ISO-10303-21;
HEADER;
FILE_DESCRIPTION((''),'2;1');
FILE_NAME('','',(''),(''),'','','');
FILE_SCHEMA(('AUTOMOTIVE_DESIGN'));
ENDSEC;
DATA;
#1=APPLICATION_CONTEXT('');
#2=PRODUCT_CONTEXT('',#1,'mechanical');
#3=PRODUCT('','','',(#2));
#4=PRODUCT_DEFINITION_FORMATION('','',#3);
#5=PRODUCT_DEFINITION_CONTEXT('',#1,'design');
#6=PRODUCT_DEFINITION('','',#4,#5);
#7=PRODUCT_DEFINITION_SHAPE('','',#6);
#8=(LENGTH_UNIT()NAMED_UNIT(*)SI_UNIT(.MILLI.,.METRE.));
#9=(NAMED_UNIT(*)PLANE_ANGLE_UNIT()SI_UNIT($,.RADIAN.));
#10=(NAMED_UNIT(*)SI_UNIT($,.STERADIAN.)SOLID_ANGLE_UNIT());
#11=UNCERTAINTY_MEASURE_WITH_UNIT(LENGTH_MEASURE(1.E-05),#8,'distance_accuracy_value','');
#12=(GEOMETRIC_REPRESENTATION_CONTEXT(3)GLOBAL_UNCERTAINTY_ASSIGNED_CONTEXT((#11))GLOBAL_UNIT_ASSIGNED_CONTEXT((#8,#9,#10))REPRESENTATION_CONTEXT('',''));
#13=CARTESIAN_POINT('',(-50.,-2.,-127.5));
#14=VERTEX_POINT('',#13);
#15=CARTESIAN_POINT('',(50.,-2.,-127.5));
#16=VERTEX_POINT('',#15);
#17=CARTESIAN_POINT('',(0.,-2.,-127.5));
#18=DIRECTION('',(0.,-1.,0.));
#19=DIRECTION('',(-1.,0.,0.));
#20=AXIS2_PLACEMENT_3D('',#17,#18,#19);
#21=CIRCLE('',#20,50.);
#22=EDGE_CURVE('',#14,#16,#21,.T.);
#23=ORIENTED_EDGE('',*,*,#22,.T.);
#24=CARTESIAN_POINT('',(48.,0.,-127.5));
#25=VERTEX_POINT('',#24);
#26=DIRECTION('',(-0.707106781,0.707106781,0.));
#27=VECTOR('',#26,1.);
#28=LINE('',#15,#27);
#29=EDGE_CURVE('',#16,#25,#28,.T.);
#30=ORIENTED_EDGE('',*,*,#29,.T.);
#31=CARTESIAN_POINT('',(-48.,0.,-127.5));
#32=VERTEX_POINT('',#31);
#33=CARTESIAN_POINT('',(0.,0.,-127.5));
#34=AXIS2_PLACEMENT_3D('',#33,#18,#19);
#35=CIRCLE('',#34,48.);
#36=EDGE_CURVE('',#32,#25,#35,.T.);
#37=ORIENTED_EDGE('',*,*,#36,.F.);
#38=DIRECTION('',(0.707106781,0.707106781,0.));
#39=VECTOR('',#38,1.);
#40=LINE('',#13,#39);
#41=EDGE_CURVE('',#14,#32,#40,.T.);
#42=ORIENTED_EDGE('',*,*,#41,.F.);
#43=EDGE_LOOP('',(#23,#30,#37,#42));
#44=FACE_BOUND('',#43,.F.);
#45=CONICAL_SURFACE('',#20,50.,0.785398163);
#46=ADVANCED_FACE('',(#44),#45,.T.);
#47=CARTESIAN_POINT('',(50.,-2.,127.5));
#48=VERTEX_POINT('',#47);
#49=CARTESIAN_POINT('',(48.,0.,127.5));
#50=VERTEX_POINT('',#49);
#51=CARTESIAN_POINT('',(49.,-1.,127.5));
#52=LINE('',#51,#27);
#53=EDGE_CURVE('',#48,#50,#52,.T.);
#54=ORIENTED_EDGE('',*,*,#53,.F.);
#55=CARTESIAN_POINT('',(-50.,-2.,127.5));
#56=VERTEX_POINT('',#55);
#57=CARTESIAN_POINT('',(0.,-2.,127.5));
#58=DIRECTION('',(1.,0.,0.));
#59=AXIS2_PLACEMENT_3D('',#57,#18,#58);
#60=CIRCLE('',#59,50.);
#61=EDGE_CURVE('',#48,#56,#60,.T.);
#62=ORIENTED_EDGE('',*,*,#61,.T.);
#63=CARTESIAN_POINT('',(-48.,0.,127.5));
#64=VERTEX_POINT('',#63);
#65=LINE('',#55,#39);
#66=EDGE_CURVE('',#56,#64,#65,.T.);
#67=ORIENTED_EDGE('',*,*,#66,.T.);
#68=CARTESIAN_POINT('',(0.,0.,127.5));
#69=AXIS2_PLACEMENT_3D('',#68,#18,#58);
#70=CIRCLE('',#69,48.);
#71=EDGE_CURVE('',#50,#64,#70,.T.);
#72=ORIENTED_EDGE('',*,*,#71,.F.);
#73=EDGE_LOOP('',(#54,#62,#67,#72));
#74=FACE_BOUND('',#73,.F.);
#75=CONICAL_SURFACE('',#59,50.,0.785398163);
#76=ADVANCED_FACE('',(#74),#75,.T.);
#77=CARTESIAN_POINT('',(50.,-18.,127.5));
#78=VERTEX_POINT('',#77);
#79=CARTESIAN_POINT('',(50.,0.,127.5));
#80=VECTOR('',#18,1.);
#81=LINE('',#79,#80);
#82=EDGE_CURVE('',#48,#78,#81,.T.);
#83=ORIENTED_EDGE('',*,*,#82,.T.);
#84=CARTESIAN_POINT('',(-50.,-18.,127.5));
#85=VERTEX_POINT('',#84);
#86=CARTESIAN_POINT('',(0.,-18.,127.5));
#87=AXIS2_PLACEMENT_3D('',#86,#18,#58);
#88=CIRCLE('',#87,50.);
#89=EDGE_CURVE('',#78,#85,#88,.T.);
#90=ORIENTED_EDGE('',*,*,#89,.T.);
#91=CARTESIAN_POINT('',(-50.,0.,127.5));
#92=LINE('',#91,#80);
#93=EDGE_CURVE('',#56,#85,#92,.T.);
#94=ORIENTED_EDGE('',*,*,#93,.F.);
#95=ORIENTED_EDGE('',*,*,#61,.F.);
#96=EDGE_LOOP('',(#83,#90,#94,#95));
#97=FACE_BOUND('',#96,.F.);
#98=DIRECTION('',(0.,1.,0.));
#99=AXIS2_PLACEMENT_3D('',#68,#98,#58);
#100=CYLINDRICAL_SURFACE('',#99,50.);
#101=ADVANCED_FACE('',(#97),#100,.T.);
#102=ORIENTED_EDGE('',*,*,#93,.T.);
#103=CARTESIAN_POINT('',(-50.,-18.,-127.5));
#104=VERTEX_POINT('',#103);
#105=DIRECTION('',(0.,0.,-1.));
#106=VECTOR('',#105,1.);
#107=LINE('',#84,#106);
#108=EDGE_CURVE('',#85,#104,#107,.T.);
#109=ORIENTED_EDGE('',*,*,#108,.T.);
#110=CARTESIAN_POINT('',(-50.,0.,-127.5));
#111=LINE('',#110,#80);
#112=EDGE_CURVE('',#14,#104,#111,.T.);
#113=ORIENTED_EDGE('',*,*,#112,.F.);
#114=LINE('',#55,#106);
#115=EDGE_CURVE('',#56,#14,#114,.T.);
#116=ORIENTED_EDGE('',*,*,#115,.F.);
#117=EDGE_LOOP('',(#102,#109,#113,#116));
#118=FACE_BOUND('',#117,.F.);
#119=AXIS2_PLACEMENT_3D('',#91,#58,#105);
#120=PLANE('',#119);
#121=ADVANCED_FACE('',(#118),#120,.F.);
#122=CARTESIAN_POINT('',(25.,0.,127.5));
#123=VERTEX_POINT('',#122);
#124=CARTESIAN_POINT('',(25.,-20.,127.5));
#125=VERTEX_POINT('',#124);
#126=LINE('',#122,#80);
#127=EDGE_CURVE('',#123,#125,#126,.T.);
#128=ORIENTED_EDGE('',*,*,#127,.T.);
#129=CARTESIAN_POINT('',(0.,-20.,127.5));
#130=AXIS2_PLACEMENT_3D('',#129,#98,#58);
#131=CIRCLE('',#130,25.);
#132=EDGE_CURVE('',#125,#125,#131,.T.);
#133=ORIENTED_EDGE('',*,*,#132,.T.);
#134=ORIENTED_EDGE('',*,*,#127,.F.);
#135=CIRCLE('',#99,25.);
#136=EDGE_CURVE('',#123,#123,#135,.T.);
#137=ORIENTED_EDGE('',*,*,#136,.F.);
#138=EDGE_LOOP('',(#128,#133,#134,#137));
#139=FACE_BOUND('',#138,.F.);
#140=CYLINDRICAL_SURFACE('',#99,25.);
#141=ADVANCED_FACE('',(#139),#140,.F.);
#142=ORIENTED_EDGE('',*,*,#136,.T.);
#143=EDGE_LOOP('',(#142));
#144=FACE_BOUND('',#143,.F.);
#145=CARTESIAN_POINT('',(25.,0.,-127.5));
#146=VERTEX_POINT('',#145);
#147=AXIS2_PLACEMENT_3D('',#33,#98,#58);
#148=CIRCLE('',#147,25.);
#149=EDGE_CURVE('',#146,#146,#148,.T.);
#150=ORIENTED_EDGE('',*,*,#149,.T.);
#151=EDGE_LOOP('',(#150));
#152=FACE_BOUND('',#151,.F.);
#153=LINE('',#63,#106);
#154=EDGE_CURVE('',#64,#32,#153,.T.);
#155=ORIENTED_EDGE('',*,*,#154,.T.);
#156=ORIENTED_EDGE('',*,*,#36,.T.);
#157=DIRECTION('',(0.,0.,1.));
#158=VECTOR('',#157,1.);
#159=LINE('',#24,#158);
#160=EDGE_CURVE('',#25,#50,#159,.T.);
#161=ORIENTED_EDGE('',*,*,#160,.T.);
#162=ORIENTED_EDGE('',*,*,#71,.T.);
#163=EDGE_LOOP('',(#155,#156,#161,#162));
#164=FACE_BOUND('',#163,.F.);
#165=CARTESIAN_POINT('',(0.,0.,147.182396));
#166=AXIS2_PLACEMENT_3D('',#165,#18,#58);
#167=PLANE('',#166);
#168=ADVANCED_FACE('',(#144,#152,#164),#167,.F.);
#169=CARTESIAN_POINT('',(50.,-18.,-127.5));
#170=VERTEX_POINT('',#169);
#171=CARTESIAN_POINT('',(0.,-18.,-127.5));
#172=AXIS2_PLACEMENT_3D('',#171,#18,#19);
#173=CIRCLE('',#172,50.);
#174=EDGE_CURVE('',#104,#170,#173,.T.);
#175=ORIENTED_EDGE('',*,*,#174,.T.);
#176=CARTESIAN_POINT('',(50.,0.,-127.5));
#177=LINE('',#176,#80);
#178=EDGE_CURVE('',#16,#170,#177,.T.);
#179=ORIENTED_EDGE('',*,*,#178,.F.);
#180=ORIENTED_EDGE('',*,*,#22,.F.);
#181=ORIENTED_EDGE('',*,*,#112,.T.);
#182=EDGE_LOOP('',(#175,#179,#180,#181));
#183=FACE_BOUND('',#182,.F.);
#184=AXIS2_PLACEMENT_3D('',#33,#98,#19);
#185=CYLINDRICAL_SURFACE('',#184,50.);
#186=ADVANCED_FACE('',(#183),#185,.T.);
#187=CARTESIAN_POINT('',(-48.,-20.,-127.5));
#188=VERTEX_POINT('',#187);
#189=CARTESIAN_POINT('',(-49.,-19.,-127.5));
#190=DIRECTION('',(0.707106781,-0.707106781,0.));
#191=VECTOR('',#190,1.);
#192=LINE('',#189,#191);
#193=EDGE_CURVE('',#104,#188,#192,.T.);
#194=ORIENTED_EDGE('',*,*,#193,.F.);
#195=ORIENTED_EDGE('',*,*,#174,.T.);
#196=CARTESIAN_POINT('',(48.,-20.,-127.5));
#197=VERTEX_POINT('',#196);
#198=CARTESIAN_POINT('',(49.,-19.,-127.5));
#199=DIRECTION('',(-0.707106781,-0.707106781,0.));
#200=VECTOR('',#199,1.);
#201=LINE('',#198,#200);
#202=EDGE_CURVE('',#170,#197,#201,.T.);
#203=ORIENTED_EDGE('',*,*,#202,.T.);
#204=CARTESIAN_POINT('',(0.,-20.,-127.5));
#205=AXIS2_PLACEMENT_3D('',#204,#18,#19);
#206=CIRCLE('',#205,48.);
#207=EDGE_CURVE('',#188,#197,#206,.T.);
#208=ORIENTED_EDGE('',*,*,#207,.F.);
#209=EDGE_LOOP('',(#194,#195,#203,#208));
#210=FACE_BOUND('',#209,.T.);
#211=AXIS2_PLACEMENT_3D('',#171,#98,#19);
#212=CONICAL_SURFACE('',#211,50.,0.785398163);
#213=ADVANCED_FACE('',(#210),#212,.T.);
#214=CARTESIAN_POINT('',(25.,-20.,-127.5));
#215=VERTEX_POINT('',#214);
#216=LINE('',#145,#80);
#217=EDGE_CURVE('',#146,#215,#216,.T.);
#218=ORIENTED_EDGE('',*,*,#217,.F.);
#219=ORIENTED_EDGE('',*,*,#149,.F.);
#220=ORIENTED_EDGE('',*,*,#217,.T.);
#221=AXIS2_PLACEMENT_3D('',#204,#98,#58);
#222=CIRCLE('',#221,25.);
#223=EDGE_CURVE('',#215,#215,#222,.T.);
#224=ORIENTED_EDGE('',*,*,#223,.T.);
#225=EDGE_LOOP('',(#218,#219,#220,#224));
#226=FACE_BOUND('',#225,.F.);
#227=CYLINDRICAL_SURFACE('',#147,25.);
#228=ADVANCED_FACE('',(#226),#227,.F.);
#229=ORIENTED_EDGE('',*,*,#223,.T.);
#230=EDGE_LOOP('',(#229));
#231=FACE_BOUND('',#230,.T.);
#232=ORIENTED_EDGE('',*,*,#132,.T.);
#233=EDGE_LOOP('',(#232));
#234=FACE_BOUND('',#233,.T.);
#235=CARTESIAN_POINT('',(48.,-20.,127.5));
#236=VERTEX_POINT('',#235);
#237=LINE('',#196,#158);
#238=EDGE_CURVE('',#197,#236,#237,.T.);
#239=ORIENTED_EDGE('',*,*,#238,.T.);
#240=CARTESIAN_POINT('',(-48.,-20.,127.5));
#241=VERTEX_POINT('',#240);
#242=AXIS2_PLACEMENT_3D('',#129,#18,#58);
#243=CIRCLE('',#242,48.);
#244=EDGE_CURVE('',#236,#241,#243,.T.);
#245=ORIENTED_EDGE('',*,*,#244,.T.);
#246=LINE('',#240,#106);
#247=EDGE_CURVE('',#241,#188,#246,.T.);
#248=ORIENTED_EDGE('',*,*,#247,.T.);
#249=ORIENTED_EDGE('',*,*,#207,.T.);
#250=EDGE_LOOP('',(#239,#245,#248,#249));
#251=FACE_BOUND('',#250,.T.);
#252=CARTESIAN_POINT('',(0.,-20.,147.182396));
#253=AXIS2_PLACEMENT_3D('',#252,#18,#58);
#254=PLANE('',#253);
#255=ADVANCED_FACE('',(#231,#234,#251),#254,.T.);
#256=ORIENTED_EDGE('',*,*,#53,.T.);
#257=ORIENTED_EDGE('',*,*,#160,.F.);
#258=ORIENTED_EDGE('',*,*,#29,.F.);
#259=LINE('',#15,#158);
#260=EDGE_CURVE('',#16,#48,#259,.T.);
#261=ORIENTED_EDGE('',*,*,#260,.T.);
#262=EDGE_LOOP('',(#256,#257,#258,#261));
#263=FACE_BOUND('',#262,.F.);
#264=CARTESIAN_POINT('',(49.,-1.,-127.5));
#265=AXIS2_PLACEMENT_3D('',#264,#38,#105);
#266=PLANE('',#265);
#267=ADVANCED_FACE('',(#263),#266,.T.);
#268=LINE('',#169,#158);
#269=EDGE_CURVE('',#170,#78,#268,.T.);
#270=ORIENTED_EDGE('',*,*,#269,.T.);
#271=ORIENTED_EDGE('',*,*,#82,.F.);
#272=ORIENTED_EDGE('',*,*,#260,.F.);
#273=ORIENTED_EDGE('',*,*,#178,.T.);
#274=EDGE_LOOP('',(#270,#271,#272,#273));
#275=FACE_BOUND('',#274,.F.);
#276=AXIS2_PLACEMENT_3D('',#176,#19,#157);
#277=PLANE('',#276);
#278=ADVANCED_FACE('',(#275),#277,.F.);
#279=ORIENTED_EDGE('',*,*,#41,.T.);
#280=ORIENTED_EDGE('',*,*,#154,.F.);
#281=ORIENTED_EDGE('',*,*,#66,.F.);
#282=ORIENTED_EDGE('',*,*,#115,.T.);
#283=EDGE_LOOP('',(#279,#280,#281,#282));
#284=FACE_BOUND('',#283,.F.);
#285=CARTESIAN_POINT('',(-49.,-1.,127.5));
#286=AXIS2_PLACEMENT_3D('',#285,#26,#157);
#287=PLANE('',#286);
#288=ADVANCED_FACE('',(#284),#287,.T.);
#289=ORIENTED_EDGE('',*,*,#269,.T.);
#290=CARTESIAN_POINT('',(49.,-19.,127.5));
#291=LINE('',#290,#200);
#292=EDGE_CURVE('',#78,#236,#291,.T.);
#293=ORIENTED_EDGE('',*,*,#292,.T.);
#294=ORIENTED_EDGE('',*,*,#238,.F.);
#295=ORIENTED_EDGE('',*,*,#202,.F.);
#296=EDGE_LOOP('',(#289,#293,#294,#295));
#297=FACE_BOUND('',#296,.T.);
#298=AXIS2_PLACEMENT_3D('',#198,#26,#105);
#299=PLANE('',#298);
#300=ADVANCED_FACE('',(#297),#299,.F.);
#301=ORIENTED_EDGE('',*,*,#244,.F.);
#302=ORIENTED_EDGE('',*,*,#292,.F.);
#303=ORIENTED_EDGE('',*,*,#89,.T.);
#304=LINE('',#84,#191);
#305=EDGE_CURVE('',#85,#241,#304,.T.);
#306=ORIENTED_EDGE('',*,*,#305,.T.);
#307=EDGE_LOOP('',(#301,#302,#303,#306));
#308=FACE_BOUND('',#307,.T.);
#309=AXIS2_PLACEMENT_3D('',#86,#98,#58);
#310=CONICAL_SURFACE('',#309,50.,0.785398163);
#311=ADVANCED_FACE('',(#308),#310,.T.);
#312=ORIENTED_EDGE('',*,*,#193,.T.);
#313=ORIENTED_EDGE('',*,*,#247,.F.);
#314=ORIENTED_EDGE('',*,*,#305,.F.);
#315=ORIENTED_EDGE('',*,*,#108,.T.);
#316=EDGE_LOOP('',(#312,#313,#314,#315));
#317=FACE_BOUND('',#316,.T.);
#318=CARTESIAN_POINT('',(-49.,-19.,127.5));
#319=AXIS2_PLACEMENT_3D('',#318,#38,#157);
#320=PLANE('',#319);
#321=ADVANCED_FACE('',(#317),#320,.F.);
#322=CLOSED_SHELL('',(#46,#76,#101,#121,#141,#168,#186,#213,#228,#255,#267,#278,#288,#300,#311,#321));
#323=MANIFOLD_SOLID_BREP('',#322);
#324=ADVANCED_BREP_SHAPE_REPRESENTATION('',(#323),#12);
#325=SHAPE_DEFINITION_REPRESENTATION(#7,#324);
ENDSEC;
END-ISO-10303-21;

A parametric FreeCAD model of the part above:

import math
import FreeCAD as App
import Part
import Sketcher
from FreeCAD import Vector
Q = App.Units.Quantity


def edges_at(feature, points):
    """Names of the edges that pass closest to the given points."""
    edges = feature.Shape.Edges
    near = lambda p: min(range(len(edges)), key=lambda i: edges[i].distToShape(Part.Vertex(*p))[0])
    return sorted({f"Edge{near(p) + 1}" for p in points})

doc = App.newDocument("Part")
body = doc.addObject("PartDesign::Body", "Body")

sketch1 = body.newObject("Sketcher::SketchObject", "Sketch")
sketch1.AttachmentSupport = (doc.getObject("XZ_Plane"), [""])
sketch1.MapMode = "FlatFace"
sketch1.addGeometry(Part.ArcOfCircle(Part.Circle(Vector(0, 128, 0), Vector(0, 0, 1), 50), math.radians(0), math.radians(180)), False)
sketch1.addGeometry(Part.LineSegment(Vector(-50, 128, 0), Vector(-50, -128, 0)), False)
sketch1.addGeometry(Part.ArcOfCircle(Part.Circle(Vector(0, -128, 0), Vector(0, 0, 1), 50), math.radians(180), math.radians(360)), False)
sketch1.addGeometry(Part.LineSegment(Vector(50, -128, 0), Vector(50, 128, 0)), False)
sketch1.addGeometry(Part.Circle(Vector(0, 128, 0), Vector(0, 0, 1), 25), False)
sketch1.addGeometry(Part.Circle(Vector(0, -128, 0), Vector(0, 0, 1), 25), False)
sketch1.addConstraint(Sketcher.Constraint("Tangent", 0, 2, 1, 1))
sketch1.addConstraint(Sketcher.Constraint("Tangent", 1, 2, 2, 1))
sketch1.addConstraint(Sketcher.Constraint("Tangent", 2, 2, 3, 1))
sketch1.addConstraint(Sketcher.Constraint("Tangent", 3, 2, 0, 1))
sketch1.addConstraint(Sketcher.Constraint("Vertical", 1))
sketch1.addConstraint(Sketcher.Constraint("Vertical", 3))
sketch1.addConstraint(Sketcher.Constraint("Coincident", 4, 3, 0, 3))
sketch1.addConstraint(Sketcher.Constraint("Coincident", 5, 3, 2, 3))
sketch1.addConstraint(Sketcher.Constraint("Equal", 4, 5))
sketch1.addConstraint(Sketcher.Constraint("Symmetric", 0, 3, 2, 3, -1, 1))
sketch1.addConstraint(Sketcher.Constraint("Diameter", 4, Q("50 mm")))
sketch1.addConstraint(Sketcher.Constraint("Radius", 0, Q("50 mm")))
sketch1.addConstraint(Sketcher.Constraint("DistanceY", 1, 2, 1, 1, Q("255 mm")))
pad1 = body.newObject("PartDesign::Pad", "Pad")
pad1.Profile = sketch1
pad1.Length = 20
doc.recompute()

chamfer = body.newObject("PartDesign::Chamfer", "Chamfer")
chamfer.Base = (pad1, edges_at(pad1, [
    (0, 0, -177.5),
    (-50, 0, 0),
    (0, 0, 177.5),
    (50, 0, 0),
    (50, -20, 0),
    (0, -20, -177.5),
    (-50, -20, 0),
    (0, -20, 177.5),
]))
chamfer.ChamferType = "Two distances"
chamfer.Size = 2
chamfer.Size2 = 2

doc.recompute()
